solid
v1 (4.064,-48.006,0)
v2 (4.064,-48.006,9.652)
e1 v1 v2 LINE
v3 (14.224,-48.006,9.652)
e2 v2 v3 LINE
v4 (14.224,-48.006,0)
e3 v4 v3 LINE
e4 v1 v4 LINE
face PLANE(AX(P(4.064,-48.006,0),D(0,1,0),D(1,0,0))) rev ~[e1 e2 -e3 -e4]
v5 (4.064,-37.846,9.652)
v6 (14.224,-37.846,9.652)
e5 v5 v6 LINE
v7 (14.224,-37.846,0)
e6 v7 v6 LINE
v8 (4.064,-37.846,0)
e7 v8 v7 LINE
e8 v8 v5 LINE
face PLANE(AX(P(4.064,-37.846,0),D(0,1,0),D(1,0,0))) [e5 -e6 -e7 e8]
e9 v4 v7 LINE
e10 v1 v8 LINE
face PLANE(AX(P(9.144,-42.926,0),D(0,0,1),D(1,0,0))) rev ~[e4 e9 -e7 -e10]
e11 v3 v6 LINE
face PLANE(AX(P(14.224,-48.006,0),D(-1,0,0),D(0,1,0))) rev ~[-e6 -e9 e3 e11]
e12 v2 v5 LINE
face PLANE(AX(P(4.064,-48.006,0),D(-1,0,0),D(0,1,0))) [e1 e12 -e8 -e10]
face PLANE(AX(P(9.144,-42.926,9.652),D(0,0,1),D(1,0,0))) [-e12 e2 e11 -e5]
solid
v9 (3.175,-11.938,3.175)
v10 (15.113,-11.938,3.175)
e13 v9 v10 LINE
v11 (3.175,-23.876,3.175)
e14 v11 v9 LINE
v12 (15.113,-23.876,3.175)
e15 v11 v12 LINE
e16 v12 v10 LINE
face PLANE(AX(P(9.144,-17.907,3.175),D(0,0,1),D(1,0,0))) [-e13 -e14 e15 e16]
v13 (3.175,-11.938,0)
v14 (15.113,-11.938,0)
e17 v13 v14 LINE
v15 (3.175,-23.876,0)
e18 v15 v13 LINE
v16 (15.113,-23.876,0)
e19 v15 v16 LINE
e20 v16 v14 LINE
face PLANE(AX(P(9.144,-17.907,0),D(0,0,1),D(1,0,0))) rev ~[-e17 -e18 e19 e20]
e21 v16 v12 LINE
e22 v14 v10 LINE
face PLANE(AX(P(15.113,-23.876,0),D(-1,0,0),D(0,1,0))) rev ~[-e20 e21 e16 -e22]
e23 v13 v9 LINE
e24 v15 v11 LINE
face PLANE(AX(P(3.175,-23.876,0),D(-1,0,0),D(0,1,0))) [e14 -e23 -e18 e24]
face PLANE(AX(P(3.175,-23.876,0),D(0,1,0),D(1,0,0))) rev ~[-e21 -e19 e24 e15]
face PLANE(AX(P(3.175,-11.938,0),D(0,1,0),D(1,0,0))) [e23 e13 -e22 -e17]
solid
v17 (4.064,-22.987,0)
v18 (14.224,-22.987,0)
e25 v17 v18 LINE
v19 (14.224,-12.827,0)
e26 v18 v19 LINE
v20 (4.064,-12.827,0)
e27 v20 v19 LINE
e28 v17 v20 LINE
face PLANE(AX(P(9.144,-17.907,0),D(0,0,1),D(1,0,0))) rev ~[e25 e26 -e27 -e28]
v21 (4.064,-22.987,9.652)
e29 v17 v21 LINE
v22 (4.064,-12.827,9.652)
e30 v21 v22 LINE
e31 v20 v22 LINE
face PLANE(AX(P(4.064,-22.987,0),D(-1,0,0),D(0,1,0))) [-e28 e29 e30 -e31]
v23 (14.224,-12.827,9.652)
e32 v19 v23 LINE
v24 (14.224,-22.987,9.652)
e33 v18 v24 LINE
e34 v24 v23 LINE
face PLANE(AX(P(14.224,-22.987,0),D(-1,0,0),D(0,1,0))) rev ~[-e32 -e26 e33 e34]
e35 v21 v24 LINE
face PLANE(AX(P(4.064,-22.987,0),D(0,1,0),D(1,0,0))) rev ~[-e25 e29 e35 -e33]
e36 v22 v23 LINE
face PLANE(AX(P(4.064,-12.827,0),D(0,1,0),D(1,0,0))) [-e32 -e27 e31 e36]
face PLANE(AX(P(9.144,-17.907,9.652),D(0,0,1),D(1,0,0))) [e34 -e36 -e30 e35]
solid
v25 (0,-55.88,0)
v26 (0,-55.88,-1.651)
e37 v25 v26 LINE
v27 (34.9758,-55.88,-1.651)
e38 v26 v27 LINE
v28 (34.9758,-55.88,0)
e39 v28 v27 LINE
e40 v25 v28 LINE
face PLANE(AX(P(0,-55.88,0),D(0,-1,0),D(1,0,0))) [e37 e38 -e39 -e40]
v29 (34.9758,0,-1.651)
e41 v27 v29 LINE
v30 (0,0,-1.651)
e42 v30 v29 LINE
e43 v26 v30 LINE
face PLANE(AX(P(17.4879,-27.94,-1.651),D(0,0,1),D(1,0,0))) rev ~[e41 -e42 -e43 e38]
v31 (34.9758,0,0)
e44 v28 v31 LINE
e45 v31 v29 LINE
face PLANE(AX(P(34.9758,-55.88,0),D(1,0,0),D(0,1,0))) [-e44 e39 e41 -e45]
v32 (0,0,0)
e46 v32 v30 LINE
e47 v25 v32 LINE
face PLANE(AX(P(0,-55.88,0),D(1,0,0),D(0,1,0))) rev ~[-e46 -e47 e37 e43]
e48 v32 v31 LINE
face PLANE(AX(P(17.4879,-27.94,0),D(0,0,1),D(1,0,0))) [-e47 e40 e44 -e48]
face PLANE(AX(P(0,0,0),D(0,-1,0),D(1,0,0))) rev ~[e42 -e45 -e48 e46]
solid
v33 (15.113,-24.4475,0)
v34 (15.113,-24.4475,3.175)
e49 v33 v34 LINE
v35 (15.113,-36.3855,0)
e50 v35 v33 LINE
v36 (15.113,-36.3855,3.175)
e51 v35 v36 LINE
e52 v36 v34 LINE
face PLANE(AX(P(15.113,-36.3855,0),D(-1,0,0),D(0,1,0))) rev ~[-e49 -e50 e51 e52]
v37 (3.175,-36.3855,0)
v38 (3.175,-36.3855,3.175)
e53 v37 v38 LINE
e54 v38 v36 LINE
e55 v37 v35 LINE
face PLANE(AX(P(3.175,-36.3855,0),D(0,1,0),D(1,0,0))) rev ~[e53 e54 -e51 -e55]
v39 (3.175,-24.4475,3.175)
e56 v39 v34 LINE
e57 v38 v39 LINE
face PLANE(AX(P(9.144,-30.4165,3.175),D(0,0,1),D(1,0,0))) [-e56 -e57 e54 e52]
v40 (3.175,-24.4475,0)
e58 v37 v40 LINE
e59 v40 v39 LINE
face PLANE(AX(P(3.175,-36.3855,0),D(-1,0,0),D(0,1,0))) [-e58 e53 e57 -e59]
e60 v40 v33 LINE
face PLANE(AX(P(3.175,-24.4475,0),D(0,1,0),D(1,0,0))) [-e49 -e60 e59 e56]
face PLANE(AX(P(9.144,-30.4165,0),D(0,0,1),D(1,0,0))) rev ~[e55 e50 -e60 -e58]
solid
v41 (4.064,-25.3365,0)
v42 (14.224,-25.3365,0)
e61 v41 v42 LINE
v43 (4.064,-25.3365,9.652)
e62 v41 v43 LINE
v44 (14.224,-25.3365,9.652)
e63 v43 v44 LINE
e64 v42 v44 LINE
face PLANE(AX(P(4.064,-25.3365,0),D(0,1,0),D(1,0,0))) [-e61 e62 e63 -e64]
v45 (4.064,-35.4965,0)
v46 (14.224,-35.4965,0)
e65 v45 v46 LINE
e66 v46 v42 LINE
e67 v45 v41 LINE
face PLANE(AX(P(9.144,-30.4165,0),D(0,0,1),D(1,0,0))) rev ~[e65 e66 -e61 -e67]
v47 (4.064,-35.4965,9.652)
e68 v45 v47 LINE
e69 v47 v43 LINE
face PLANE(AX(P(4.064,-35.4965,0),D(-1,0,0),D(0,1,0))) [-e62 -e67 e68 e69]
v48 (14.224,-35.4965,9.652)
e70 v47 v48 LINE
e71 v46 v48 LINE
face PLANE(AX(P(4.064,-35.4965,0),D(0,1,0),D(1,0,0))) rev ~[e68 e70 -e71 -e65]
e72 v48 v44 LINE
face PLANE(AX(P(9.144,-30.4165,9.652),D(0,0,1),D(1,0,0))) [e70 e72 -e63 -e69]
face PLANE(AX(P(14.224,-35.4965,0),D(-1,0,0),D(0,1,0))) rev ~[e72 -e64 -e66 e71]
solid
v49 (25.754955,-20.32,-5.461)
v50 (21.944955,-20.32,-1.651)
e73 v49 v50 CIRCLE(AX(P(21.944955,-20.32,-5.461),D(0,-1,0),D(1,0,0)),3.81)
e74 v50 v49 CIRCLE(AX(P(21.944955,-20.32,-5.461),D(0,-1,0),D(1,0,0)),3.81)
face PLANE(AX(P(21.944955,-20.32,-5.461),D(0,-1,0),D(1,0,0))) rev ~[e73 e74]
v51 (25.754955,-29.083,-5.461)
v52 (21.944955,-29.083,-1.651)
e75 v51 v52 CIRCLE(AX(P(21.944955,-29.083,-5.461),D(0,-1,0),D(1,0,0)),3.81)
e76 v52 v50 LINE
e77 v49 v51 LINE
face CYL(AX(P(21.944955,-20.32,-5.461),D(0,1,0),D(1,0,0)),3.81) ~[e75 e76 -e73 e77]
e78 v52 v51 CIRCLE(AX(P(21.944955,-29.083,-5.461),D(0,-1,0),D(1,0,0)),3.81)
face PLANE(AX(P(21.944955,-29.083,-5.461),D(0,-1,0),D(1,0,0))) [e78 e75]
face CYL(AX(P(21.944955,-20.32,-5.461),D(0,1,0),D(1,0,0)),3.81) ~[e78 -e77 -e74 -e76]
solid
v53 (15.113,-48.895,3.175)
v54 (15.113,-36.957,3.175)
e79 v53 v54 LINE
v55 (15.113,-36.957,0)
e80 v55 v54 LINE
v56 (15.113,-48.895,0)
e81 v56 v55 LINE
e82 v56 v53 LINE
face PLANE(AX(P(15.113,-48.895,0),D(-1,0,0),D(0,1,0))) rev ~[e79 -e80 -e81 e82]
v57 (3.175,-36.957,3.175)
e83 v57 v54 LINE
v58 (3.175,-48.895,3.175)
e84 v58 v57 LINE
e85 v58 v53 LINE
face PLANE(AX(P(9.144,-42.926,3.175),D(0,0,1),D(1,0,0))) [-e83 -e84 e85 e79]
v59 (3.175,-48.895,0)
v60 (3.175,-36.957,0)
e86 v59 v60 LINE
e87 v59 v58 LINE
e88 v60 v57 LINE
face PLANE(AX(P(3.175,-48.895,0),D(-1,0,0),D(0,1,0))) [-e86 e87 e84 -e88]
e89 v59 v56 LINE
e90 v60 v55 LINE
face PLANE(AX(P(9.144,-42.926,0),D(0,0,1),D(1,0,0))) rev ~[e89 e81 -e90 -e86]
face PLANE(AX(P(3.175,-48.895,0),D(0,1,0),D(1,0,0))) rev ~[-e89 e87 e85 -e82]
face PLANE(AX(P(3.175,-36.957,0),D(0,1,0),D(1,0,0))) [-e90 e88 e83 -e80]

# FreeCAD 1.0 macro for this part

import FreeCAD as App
import Part
import Sketcher
from FreeCAD import Vector
Q = App.Units.Quantity

doc = App.newDocument("Part")
body = doc.addObject("PartDesign::Body", "Body")
body.AllowCompound = True

# Sketch on XY plane
sketch1 = doc.addObject("Sketcher::SketchObject", "Sketch")
body.addObject(sketch1)
sketch1.AttachmentSupport = (doc.XY_Plane, [""])
sketch1.MapMode = "FlatFace"
sketch1.addGeometry(Part.LineSegment(Vector(0, 0, 0), Vector(0, -55.88, 0)), False)
sketch1.addGeometry(Part.LineSegment(Vector(0, -55.88, 0), Vector(34.9758, -55.88, 0)), False)
sketch1.addGeometry(Part.LineSegment(Vector(34.9758, -55.88, 0), Vector(34.9758, 0, 0)), False)
sketch1.addGeometry(Part.LineSegment(Vector(34.9758, 0, 0), Vector(0, 0, 0)), False)
sketch1.addConstraint(Sketcher.Constraint("Coincident", 0, 2, 1, 1))
sketch1.addConstraint(Sketcher.Constraint("Coincident", 1, 2, 2, 1))
sketch1.addConstraint(Sketcher.Constraint("Coincident", 2, 2, 3, 1))
sketch1.addConstraint(Sketcher.Constraint("Coincident", 3, 2, 0, 1))
sketch1.addConstraint(Sketcher.Constraint("Vertical", 0))
sketch1.addConstraint(Sketcher.Constraint("Horizontal", 1))
sketch1.addConstraint(Sketcher.Constraint("Vertical", 2))
sketch1.addConstraint(Sketcher.Constraint("Horizontal", 3))
sketch1.addConstraint(Sketcher.Constraint("Coincident", 3, 2, -1, 1))
sketch1.addConstraint(Sketcher.Constraint("DistanceY", 0, 2, 0, 1, Q("2.2 in")))
sketch1.addConstraint(Sketcher.Constraint("DistanceX", 1, 1, 1, 2, Q("1.377 in")))
pad1 = doc.addObject("PartDesign::Pad", "Pad")
body.addObject(pad1)
pad1.Profile = sketch1
pad1.Length = Q("0.065 in")
pad1.Reversed = True

# Sketch on XZ plane
sketch2 = doc.addObject("Sketcher::SketchObject", "Sketch001")
body.addObject(sketch2)
sketch2.AttachmentSupport = (doc.XZ_Plane, [""])
sketch2.MapMode = "FlatFace"
sketch2.AttachmentOffset = App.Placement(Vector(0, 0, 0.8 * 25.4), App.Rotation())
sketch2.addGeometry(Part.Circle(Vector(21.944955, -5.461, 0), Vector(0, 0, 1), 3.81), False)
sketch2.addConstraint(Sketcher.Constraint("Diameter", 0, Q("0.3 in")))
sketch2.addConstraint(Sketcher.Constraint("DistanceY", 0, 3, -1, 1, Q("0.215 in")))
sketch2.addConstraint(Sketcher.Constraint("DistanceX", -1, 1, 0, 3, 21.944955))
pad2 = doc.addObject("PartDesign::Pad", "Pad001")
body.addObject(pad2)
pad2.Profile = sketch2
pad2.Length = Q("0.345 in")
body2 = doc.addObject("PartDesign::Body", "Body001")

# Sketch on XY plane
sketch3 = doc.addObject("Sketcher::SketchObject", "Sketch002")
body2.addObject(sketch3)
sketch3.AttachmentSupport = (doc.getObject("XY_Plane001"), [""])
sketch3.MapMode = "FlatFace"
sketch3.addGeometry(Part.LineSegment(Vector(3.175, -11.938, 0), Vector(3.175, -23.876, 0)), False)
sketch3.addGeometry(Part.LineSegment(Vector(3.175, -23.876, 0), Vector(15.113, -23.876, 0)), False)
sketch3.addGeometry(Part.LineSegment(Vector(15.113, -23.876, 0), Vector(15.113, -11.938, 0)), False)
sketch3.addGeometry(Part.LineSegment(Vector(15.113, -11.938, 0), Vector(3.175, -11.938, 0)), False)
sketch3.addConstraint(Sketcher.Constraint("Coincident", 0, 2, 1, 1))
sketch3.addConstraint(Sketcher.Constraint("Coincident", 1, 2, 2, 1))
sketch3.addConstraint(Sketcher.Constraint("Coincident", 2, 2, 3, 1))
sketch3.addConstraint(Sketcher.Constraint("Coincident", 3, 2, 0, 1))
sketch3.addConstraint(Sketcher.Constraint("Vertical", 0))
sketch3.addConstraint(Sketcher.Constraint("Horizontal", 1))
sketch3.addConstraint(Sketcher.Constraint("Vertical", 2))
sketch3.addConstraint(Sketcher.Constraint("Horizontal", 3))
sketch3.addConstraint(Sketcher.Constraint("Equal", 3, 0))
sketch3.addConstraint(Sketcher.Constraint("DistanceX", 1, 1, 1, 2, Q("0.47 in")))
sketch3.addConstraint(Sketcher.Constraint("DistanceY", 0, 2, -1, 1, Q("0.94 in")))
sketch3.addConstraint(Sketcher.Constraint("DistanceX", -1, 1, 0, 2, Q("0.125 in")))
pad3 = doc.addObject("PartDesign::Pad", "Pad002")
body2.addObject(pad3)
pad3.Profile = sketch3
pad3.Length = Q("0.125 in")
body3 = doc.addObject("PartDesign::Body", "Body002")

# Sketch on XY plane
sketch4 = doc.addObject("Sketcher::SketchObject", "Sketch003")
body3.addObject(sketch4)
sketch4.AttachmentSupport = (doc.getObject("XY_Plane002"), [""])
sketch4.MapMode = "FlatFace"
sketch4.addGeometry(Part.LineSegment(Vector(3.175, -24.4475, 0), Vector(3.175, -36.3855, 0)), False)
sketch4.addGeometry(Part.LineSegment(Vector(3.175, -36.3855, 0), Vector(15.113, -36.3855, 0)), False)
sketch4.addGeometry(Part.LineSegment(Vector(15.113, -36.3855, 0), Vector(15.113, -24.4475, 0)), False)
sketch4.addGeometry(Part.LineSegment(Vector(15.113, -24.4475, 0), Vector(3.175, -24.4475, 0)), False)
sketch4.addConstraint(Sketcher.Constraint("Coincident", 0, 2, 1, 1))
sketch4.addConstraint(Sketcher.Constraint("Coincident", 1, 2, 2, 1))
sketch4.addConstraint(Sketcher.Constraint("Coincident", 2, 2, 3, 1))
sketch4.addConstraint(Sketcher.Constraint("Coincident", 3, 2, 0, 1))
sketch4.addConstraint(Sketcher.Constraint("Vertical", 0))
sketch4.addConstraint(Sketcher.Constraint("Horizontal", 1))
sketch4.addConstraint(Sketcher.Constraint("Vertical", 2))
sketch4.addConstraint(Sketcher.Constraint("Horizontal", 3))
sketch4.addConstraint(Sketcher.Constraint("Equal", 3, 0))
sketch4.addConstraint(Sketcher.Constraint("DistanceX", 1, 1, 1, 2, Q("0.47 in")))
sketch4.addConstraint(Sketcher.Constraint("DistanceX", -1, 1, 0, 2, Q("0.125 in")))
sketch4.addConstraint(Sketcher.Constraint("DistanceY", 0, 2, -1, 1, Q("1.4325 in")))
pad4 = doc.addObject("PartDesign::Pad", "Pad003")
body3.addObject(pad4)
pad4.Profile = sketch4
pad4.Length = Q("0.125 in")
body4 = doc.addObject("PartDesign::Body", "Body003")

# Sketch on XY plane
sketch5 = doc.addObject("Sketcher::SketchObject", "Sketch004")
body4.addObject(sketch5)
sketch5.AttachmentSupport = (doc.getObject("XY_Plane003"), [""])
sketch5.MapMode = "FlatFace"
sketch5.addGeometry(Part.LineSegment(Vector(3.175, -36.957, 0), Vector(3.175, -48.895, 0)), False)
sketch5.addGeometry(Part.LineSegment(Vector(3.175, -48.895, 0), Vector(15.113, -48.895, 0)), False)
sketch5.addGeometry(Part.LineSegment(Vector(15.113, -48.895, 0), Vector(15.113, -36.957, 0)), False)
sketch5.addGeometry(Part.LineSegment(Vector(15.113, -36.957, 0), Vector(3.175, -36.957, 0)), False)
sketch5.addConstraint(Sketcher.Constraint("Coincident", 0, 2, 1, 1))
sketch5.addConstraint(Sketcher.Constraint("Coincident", 1, 2, 2, 1))
sketch5.addConstraint(Sketcher.Constraint("Coincident", 2, 2, 3, 1))
sketch5.addConstraint(Sketcher.Constraint("Coincident", 3, 2, 0, 1))
sketch5.addConstraint(Sketcher.Constraint("Vertical", 0))
sketch5.addConstraint(Sketcher.Constraint("Horizontal", 1))
sketch5.addConstraint(Sketcher.Constraint("Vertical", 2))
sketch5.addConstraint(Sketcher.Constraint("Horizontal", 3))
sketch5.addConstraint(Sketcher.Constraint("Equal", 3, 0))
sketch5.addConstraint(Sketcher.Constraint("DistanceX", 1, 1, 1, 2, Q("0.47 in")))
sketch5.addConstraint(Sketcher.Constraint("DistanceX", -1, 1, 0, 2, Q("0.125 in")))
sketch5.addConstraint(Sketcher.Constraint("DistanceY", 0, 2, -1, 1, Q("1.925 in")))
pad5 = doc.addObject("PartDesign::Pad", "Pad004")
body4.addObject(pad5)
pad5.Profile = sketch5
pad5.Length = Q("0.125 in")
body5 = doc.addObject("PartDesign::Body", "Body004")

# Sketch on XY plane
sketch6 = doc.addObject("Sketcher::SketchObject", "Sketch005")
body5.addObject(sketch6)
sketch6.AttachmentSupport = (doc.getObject("XY_Plane004"), [""])
sketch6.MapMode = "FlatFace"
sketch6.addGeometry(Part.LineSegment(Vector(4.064, -12.827, 0), Vector(4.064, -22.987, 0)), False)
sketch6.addGeometry(Part.LineSegment(Vector(4.064, -22.987, 0), Vector(14.224, -22.987, 0)), False)
sketch6.addGeometry(Part.LineSegment(Vector(14.224, -22.987, 0), Vector(14.224, -12.827, 0)), False)
sketch6.addGeometry(Part.LineSegment(Vector(14.224, -12.827, 0), Vector(4.064, -12.827, 0)), False)
sketch6.addConstraint(Sketcher.Constraint("Coincident", 0, 2, 1, 1))
sketch6.addConstraint(Sketcher.Constraint("Coincident", 1, 2, 2, 1))
sketch6.addConstraint(Sketcher.Constraint("Coincident", 2, 2, 3, 1))
sketch6.addConstraint(Sketcher.Constraint("Coincident", 3, 2, 0, 1))
sketch6.addConstraint(Sketcher.Constraint("Vertical", 0))
sketch6.addConstraint(Sketcher.Constraint("Horizontal", 1))
sketch6.addConstraint(Sketcher.Constraint("Vertical", 2))
sketch6.addConstraint(Sketcher.Constraint("Horizontal", 3))
sketch6.addConstraint(Sketcher.Constraint("Equal", 3, 0))
sketch6.addConstraint(Sketcher.Constraint("DistanceX", 1, 1, 1, 2, Q("0.4 in")))
sketch6.addConstraint(Sketcher.Constraint("DistanceX", -1, 1, 0, 2, Q("0.16 in")))
sketch6.addConstraint(Sketcher.Constraint("DistanceY", 0, 2, -1, 1, Q("0.905 in")))
pad6 = doc.addObject("PartDesign::Pad", "Pad005")
body5.addObject(pad6)
pad6.Profile = sketch6
pad6.Length = Q("0.38 in")
body6 = doc.addObject("PartDesign::Body", "Body005")

# Sketch on XY plane
sketch7 = doc.addObject("Sketcher::SketchObject", "Sketch006")
body6.addObject(sketch7)
sketch7.AttachmentSupport = (doc.getObject("XY_Plane005"), [""])
sketch7.MapMode = "FlatFace"
sketch7.addGeometry(Part.LineSegment(Vector(4.064, -25.3365, 0), Vector(4.064, -35.4965, 0)), False)
sketch7.addGeometry(Part.LineSegment(Vector(4.064, -35.4965, 0), Vector(14.224, -35.4965, 0)), False)
sketch7.addGeometry(Part.LineSegment(Vector(14.224, -35.4965, 0), Vector(14.224, -25.3365, 0)), False)
sketch7.addGeometry(Part.LineSegment(Vector(14.224, -25.3365, 0), Vector(4.064, -25.3365, 0)), False)
sketch7.addConstraint(Sketcher.Constraint("Coincident", 0, 2, 1, 1))
sketch7.addConstraint(Sketcher.Constraint("Coincident", 1, 2, 2, 1))
sketch7.addConstraint(Sketcher.Constraint("Coincident", 2, 2, 3, 1))
sketch7.addConstraint(Sketcher.Constraint("Coincident", 3, 2, 0, 1))
sketch7.addConstraint(Sketcher.Constraint("Vertical", 0))
sketch7.addConstraint(Sketcher.Constraint("Horizontal", 1))
sketch7.addConstraint(Sketcher.Constraint("Vertical", 2))
sketch7.addConstraint(Sketcher.Constraint("Horizontal", 3))
sketch7.addConstraint(Sketcher.Constraint("Equal", 3, 0))
sketch7.addConstraint(Sketcher.Constraint("DistanceX", 1, 1, 1, 2, Q("0.4 in")))
sketch7.addConstraint(Sketcher.Constraint("DistanceX", -1, 1, 0, 2, Q("0.16 in")))
sketch7.addConstraint(Sketcher.Constraint("DistanceY", 0, 2, -1, 1, Q("1.3975 in")))
pad7 = doc.addObject("PartDesign::Pad", "Pad006")
body6.addObject(pad7)
pad7.Profile = sketch7
pad7.Length = Q("0.38 in")
body7 = doc.addObject("PartDesign::Body", "Body006")

# Sketch on XY plane
sketch8 = doc.addObject("Sketcher::SketchObject", "Sketch007")
body7.addObject(sketch8)
sketch8.AttachmentSupport = (doc.getObject("XY_Plane006"), [""])
sketch8.MapMode = "FlatFace"
sketch8.addGeometry(Part.LineSegment(Vector(4.064, -37.846, 0), Vector(4.064, -48.006, 0)), False)
sketch8.addGeometry(Part.LineSegment(Vector(4.064, -48.006, 0), Vector(14.224, -48.006, 0)), False)
sketch8.addGeometry(Part.LineSegment(Vector(14.224, -48.006, 0), Vector(14.224, -37.846, 0)), False)
sketch8.addGeometry(Part.LineSegment(Vector(14.224, -37.846, 0), Vector(4.064, -37.846, 0)), False)
sketch8.addConstraint(Sketcher.Constraint("Coincident", 0, 2, 1, 1))
sketch8.addConstraint(Sketcher.Constraint("Coincident", 1, 2, 2, 1))
sketch8.addConstraint(Sketcher.Constraint("Coincident", 2, 2, 3, 1))
sketch8.addConstraint(Sketcher.Constraint("Coincident", 3, 2, 0, 1))
sketch8.addConstraint(Sketcher.Constraint("Vertical", 0))
sketch8.addConstraint(Sketcher.Constraint("Horizontal", 1))
sketch8.addConstraint(Sketcher.Constraint("Vertical", 2))
sketch8.addConstraint(Sketcher.Constraint("Horizontal", 3))
sketch8.addConstraint(Sketcher.Constraint("Equal", 3, 0))
sketch8.addConstraint(Sketcher.Constraint("DistanceX", 1, 1, 1, 2, Q("0.4 in")))
sketch8.addConstraint(Sketcher.Constraint("DistanceX", -1, 1, 0, 2, Q("0.16 in")))
sketch8.addConstraint(Sketcher.Constraint("DistanceY", 0, 2, -1, 1, Q("1.89 in")))
pad8 = doc.addObject("PartDesign::Pad", "Pad007")
body7.addObject(pad8)
pad8.Profile = sketch8
pad8.Length = Q("0.38 in")

doc.recompute()
